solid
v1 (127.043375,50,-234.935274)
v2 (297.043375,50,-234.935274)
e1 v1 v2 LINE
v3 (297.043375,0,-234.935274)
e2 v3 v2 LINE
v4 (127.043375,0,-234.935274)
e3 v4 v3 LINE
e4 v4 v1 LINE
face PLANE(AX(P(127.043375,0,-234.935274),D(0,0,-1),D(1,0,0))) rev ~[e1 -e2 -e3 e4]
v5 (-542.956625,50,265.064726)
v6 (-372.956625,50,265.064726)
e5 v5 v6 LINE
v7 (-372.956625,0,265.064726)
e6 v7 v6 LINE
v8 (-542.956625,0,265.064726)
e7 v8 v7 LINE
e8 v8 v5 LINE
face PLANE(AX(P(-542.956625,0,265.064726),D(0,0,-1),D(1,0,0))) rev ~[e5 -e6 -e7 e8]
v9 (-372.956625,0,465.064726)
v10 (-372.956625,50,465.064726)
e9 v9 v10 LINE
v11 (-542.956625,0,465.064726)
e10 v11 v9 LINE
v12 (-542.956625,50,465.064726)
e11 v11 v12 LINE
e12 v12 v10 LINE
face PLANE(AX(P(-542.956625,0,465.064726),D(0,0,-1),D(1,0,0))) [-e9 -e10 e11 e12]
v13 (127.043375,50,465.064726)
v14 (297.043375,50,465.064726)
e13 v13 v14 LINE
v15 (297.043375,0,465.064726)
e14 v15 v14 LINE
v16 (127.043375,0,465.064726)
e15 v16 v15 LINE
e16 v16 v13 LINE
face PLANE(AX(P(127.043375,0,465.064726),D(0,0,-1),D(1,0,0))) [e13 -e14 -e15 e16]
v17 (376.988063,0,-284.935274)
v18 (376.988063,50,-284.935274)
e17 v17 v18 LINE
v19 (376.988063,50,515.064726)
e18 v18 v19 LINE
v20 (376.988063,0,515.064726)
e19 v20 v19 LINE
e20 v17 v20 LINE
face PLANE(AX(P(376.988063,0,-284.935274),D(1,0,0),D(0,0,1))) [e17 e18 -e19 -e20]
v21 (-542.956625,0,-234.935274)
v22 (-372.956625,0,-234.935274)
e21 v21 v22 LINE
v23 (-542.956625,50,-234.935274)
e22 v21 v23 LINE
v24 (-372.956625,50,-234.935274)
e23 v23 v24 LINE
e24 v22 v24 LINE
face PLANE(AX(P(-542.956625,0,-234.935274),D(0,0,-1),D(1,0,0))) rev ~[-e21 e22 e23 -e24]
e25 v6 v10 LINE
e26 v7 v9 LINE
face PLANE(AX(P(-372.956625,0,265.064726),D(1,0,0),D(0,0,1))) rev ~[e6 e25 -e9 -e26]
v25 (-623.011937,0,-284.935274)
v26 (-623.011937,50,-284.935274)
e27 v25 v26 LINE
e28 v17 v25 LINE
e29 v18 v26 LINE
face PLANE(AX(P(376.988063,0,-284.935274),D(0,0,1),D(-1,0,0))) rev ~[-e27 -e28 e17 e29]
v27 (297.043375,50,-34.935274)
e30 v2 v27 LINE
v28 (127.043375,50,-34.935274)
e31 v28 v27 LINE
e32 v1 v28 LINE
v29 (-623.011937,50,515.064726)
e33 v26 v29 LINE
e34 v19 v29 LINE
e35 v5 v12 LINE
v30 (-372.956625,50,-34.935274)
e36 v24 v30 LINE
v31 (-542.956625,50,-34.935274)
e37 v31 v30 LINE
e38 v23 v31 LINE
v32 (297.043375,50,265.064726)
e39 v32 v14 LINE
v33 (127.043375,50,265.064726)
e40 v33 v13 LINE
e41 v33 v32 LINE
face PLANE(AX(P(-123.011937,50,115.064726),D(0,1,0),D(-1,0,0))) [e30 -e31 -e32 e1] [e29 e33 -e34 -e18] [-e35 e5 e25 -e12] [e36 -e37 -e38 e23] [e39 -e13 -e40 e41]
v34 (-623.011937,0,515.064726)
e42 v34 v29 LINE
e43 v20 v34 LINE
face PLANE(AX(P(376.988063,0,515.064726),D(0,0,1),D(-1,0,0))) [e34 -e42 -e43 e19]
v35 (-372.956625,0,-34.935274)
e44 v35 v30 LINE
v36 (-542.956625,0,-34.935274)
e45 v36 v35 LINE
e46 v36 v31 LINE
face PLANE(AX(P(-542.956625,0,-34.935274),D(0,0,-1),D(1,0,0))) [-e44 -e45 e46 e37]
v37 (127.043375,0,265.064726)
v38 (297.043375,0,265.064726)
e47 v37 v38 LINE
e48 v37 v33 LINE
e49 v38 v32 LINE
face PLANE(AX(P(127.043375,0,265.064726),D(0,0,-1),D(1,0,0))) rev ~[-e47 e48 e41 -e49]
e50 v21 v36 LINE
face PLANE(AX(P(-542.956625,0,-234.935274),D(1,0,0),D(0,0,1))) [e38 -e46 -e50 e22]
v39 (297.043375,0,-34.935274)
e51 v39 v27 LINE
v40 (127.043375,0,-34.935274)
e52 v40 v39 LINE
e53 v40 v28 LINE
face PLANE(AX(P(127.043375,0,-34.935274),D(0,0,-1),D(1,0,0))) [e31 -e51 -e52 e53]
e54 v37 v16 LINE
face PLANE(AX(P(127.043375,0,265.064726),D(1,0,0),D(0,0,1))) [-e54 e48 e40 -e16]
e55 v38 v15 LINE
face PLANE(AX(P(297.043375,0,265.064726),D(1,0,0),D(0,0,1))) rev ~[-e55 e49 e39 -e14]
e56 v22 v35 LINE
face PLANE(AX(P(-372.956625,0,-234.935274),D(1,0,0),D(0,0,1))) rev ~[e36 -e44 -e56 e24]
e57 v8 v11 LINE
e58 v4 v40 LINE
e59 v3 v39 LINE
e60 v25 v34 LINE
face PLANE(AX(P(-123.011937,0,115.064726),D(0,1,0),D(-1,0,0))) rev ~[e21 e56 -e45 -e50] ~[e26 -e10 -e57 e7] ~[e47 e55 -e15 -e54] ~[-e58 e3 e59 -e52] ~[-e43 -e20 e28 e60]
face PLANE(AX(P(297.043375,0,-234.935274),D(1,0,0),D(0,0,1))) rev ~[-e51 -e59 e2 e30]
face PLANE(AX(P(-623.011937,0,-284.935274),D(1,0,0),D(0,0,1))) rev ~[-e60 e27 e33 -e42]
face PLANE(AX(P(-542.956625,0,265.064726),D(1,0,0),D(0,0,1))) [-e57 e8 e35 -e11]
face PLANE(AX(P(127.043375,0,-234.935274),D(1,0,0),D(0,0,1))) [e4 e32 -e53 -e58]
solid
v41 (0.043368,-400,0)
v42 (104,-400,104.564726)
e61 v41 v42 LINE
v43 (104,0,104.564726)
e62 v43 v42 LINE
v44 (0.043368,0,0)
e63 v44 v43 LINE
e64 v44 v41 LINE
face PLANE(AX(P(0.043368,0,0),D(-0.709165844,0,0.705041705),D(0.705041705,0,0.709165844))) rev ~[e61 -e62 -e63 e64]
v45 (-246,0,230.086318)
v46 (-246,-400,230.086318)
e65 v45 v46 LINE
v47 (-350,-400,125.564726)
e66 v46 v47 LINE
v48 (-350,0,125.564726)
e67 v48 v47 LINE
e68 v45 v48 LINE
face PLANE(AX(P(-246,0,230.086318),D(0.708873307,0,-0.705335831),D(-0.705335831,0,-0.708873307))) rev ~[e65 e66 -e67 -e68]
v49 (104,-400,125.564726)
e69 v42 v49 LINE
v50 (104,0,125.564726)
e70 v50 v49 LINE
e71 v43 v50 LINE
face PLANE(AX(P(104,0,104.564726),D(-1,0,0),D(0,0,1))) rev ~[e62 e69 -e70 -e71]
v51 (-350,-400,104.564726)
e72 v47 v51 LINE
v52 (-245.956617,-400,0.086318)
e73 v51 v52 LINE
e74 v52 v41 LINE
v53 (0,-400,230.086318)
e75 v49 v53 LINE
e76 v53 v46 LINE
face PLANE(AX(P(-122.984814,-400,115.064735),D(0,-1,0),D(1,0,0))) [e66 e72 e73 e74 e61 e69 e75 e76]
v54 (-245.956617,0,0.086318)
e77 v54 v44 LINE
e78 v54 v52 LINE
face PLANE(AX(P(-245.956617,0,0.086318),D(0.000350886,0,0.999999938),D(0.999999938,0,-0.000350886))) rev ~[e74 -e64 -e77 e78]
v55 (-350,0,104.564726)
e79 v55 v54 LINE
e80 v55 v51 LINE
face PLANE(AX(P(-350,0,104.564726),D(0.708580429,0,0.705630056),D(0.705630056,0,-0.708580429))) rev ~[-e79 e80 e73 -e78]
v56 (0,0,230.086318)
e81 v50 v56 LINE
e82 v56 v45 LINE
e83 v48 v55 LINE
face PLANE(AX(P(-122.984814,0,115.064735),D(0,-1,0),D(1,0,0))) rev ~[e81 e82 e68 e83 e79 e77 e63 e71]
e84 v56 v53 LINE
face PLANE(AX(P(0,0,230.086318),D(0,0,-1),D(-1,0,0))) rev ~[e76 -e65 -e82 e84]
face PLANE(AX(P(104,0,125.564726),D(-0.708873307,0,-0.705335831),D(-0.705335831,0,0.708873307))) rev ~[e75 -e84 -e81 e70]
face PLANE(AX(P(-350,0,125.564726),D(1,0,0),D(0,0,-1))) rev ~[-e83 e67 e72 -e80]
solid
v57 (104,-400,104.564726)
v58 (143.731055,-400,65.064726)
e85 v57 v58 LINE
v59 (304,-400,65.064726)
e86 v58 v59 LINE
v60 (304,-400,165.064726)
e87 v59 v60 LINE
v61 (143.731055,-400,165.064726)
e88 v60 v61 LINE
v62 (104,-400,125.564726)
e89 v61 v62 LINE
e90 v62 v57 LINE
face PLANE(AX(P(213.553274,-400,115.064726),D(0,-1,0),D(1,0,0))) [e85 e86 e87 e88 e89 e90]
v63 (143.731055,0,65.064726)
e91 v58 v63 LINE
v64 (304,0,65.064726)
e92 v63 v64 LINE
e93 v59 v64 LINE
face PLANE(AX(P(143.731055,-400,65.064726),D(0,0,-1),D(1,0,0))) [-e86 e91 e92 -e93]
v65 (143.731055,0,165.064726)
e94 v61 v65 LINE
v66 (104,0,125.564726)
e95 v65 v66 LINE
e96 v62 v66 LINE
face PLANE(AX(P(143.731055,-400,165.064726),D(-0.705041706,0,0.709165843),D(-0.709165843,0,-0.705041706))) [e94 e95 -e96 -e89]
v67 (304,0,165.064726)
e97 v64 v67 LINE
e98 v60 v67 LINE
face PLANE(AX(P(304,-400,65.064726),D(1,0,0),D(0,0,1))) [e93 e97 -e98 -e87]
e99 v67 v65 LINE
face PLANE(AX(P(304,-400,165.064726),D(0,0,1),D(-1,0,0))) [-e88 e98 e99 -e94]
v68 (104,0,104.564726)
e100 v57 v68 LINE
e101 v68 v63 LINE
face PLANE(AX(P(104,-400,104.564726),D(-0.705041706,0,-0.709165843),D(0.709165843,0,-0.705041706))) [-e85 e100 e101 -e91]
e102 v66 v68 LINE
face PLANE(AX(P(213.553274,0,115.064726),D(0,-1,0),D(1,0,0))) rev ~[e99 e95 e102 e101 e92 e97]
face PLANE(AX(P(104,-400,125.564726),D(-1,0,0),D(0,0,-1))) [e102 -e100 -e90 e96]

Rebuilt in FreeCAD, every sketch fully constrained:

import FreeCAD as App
import Part
import Sketcher
from FreeCAD import Vector
Q = App.Units.Quantity

doc = App.newDocument("Part")
body = doc.addObject("PartDesign::Body", "Body")

sketch1 = body.newObject("Sketcher::SketchObject", "Sketch")
sketch1.AttachmentSupport = (doc.getObject("XZ_Plane"), [""])
sketch1.MapMode = "FlatFace"
sketch1.addGeometry([
    Part.LineSegment(Vector(-350, 105, 0), Vector(-246, 0, 0)),
    Part.LineSegment(Vector(-246, 0, 0), Vector(0, 0, 0)),
    Part.LineSegment(Vector(0, 0, 0), Vector(104, 105, 0)),
    Part.LineSegment(Vector(104, 105, 0), Vector(104, 126, 0)),
    Part.LineSegment(Vector(104, 126, 0), Vector(0, 230, 0)),
    Part.LineSegment(Vector(0, 230, 0), Vector(-246, 230, 0)),
    Part.LineSegment(Vector(-246, 230, 0), Vector(-350, 126, 0)),
    Part.LineSegment(Vector(-350, 126, 0), Vector(-350, 105, 0)),
], False)
sketch1.addConstraint([
    Sketcher.Constraint("Coincident", 0, 2, 1, 1),
    Sketcher.Constraint("Coincident", 1, 2, 2, 1),
    Sketcher.Constraint("Coincident", 2, 2, 3, 1),
    Sketcher.Constraint("Coincident", 3, 2, 4, 1),
    Sketcher.Constraint("Coincident", 4, 2, 5, 1),
    Sketcher.Constraint("Coincident", 5, 2, 6, 1),
    Sketcher.Constraint("Coincident", 6, 2, 7, 1),
    Sketcher.Constraint("Coincident", 7, 2, 0, 1),
    Sketcher.Constraint("Vertical", 3),
    Sketcher.Constraint("Horizontal", 5),
    Sketcher.Constraint("Vertical", 7),
    Sketcher.Constraint("PointOnObject", 1, 2, -1),
    Sketcher.Constraint("PointOnObject", 4, 2, -2),
    Sketcher.Constraint("Horizontal", 3, 2, 6, 2),
    Sketcher.Constraint("Horizontal", 2, 2, 7, 2),
    Sketcher.Constraint("Equal", 0, 2),
    Sketcher.Constraint("Equal", 2, 4),
    Sketcher.Constraint("Equal", 4, 6),
    Sketcher.Constraint("DistanceX", 5, 2, 5, 1, Q("246 mm")),
    Sketcher.Constraint("DistanceY", 3, 1, 3, 2, Q("21 mm")),
    Sketcher.Constraint("Distance", 1, Q("246 mm")),
    Sketcher.Constraint("DistanceX", -1, 1, 2, 2, Q("104 mm")),
    Sketcher.Constraint("DistanceY", 0, 2, 4, 2, Q("230 mm")),
    Sketcher.Constraint("DistanceY", -1, 1, 0, 2, Q("0.086318 mm")),
])
pad1 = body.newObject("PartDesign::Pad", "Pad")
pad1.Profile = sketch1
pad1.Length = 400
body2 = doc.addObject("PartDesign::Body", "Body001")

sketch2 = body2.newObject("Sketcher::SketchObject", "Sketch001")
sketch2.AttachmentSupport = (doc.getObject("XZ_Plane001"), [""])
sketch2.MapMode = "FlatFace"
sketch2.addGeometry([
    Part.LineSegment(Vector(377, 515, 0), Vector(377, -285, 0)),
    Part.LineSegment(Vector(377, -285, 0), Vector(-623, -285, 0)),
    Part.LineSegment(Vector(-623, -285, 0), Vector(-623, 515, 0)),
    Part.LineSegment(Vector(-623, 515, 0), Vector(377, 515, 0)),
], False)
sketch2.addConstraint([
    Sketcher.Constraint("Coincident", 0, 2, 1, 1),
    Sketcher.Constraint("Coincident", 1, 2, 2, 1),
    Sketcher.Constraint("Coincident", 2, 2, 3, 1),
    Sketcher.Constraint("Coincident", 3, 2, 0, 1),
    Sketcher.Constraint("Vertical", 0),
    Sketcher.Constraint("Horizontal", 1),
    Sketcher.Constraint("Vertical", 2),
    Sketcher.Constraint("Horizontal", 3),
    Sketcher.Constraint("DistanceX", 1, 2, 1, 1, Q("1000 mm")),
    Sketcher.Constraint("DistanceY", 0, 2, 0, 1, Q("800 mm")),
    Sketcher.Constraint("DistanceX", -1, 1, 0, 2, Q("376.988063 mm")),
    Sketcher.Constraint("DistanceY", 0, 2, -1, 1, Q("284.935274 mm")),
])
pad2 = body2.newObject("PartDesign::Pad", "Pad001")
pad2.Profile = sketch2
pad2.Length = 50
pad2.Reversed = True

sketch3 = body2.newObject("Sketcher::SketchObject", "Sketch002")
sketch3.AttachmentSupport = (doc.getObject("XZ_Plane001"), [""])
sketch3.MapMode = "FlatFace"
sketch3.addGeometry([
    Part.LineSegment(Vector(-543, -35, 0), Vector(-543, -235, 0)),
    Part.LineSegment(Vector(-543, -235, 0), Vector(-373, -235, 0)),
    Part.LineSegment(Vector(-373, -235, 0), Vector(-373, -35, 0)),
    Part.LineSegment(Vector(-373, -35, 0), Vector(-543, -35, 0)),
    Part.LineSegment(Vector(-543, 465, 0), Vector(-543, 265, 0)),
    Part.LineSegment(Vector(-543, 265, 0), Vector(-373, 265, 0)),
    Part.LineSegment(Vector(-373, 265, 0), Vector(-373, 465, 0)),
    Part.LineSegment(Vector(-373, 465, 0), Vector(-543, 465, 0)),
    Part.LineSegment(Vector(127, 465, 0), Vector(127, 265, 0)),
    Part.LineSegment(Vector(127, 265, 0), Vector(297, 265, 0)),
    Part.LineSegment(Vector(297, 265, 0), Vector(297, 465, 0)),
    Part.LineSegment(Vector(297, 465, 0), Vector(127, 465, 0)),
    Part.LineSegment(Vector(127, -35, 0), Vector(127, -235, 0)),
    Part.LineSegment(Vector(127, -235, 0), Vector(297, -235, 0)),
    Part.LineSegment(Vector(297, -235, 0), Vector(297, -35, 0)),
    Part.LineSegment(Vector(297, -35, 0), Vector(127, -35, 0)),
], False)
sketch3.addConstraint([
    Sketcher.Constraint("Coincident", 0, 2, 1, 1),
    Sketcher.Constraint("Coincident", 1, 2, 2, 1),
    Sketcher.Constraint("Coincident", 2, 2, 3, 1),
    Sketcher.Constraint("Coincident", 3, 2, 0, 1),
    Sketcher.Constraint("Coincident", 4, 2, 5, 1),
    Sketcher.Constraint("Coincident", 5, 2, 6, 1),
    Sketcher.Constraint("Coincident", 6, 2, 7, 1),
    Sketcher.Constraint("Coincident", 7, 2, 4, 1),
    Sketcher.Constraint("Coincident", 8, 2, 9, 1),
    Sketcher.Constraint("Coincident", 9, 2, 10, 1),
    Sketcher.Constraint("Coincident", 10, 2, 11, 1),
    Sketcher.Constraint("Coincident", 11, 2, 8, 1),
    Sketcher.Constraint("Coincident", 12, 2, 13, 1),
    Sketcher.Constraint("Coincident", 13, 2, 14, 1),
    Sketcher.Constraint("Coincident", 14, 2, 15, 1),
    Sketcher.Constraint("Coincident", 15, 2, 12, 1),
    Sketcher.Constraint("Vertical", 0),
    Sketcher.Constraint("Horizontal", 1),
    Sketcher.Constraint("Vertical", 2),
    Sketcher.Constraint("Horizontal", 3),
    Sketcher.Constraint("Vertical", 4),
    Sketcher.Constraint("Horizontal", 5),
    Sketcher.Constraint("Vertical", 6),
    Sketcher.Constraint("Horizontal", 7),
    Sketcher.Constraint("Vertical", 8),
    Sketcher.Constraint("Horizontal", 9),
    Sketcher.Constraint("Vertical", 10),
    Sketcher.Constraint("Horizontal", 11),
    Sketcher.Constraint("Vertical", 12),
    Sketcher.Constraint("Horizontal", 13),
    Sketcher.Constraint("Vertical", 14),
    Sketcher.Constraint("Horizontal", 15),
    Sketcher.Constraint("Horizontal", 5, 2, 8, 2),
    Sketcher.Constraint("Horizontal", 7, 2, 10, 2),
    Sketcher.Constraint("Horizontal", 1, 2, 12, 2),
    Sketcher.Constraint("Horizontal", 3, 2, 14, 2),
    Sketcher.Constraint("Vertical", 3, 2, 4, 2),
    Sketcher.Constraint("Vertical", 2, 2, 5, 2),
    Sketcher.Constraint("Vertical", 11, 2, 12, 2),
    Sketcher.Constraint("Vertical", 10, 2, 13, 2),
    Sketcher.Constraint("Equal", 7, 9),
    Sketcher.Constraint("Equal", 2, 4),
    Sketcher.Constraint("DistanceX", 1, 1, 1, 2, Q("170 mm")),
    Sketcher.Constraint("DistanceY", 0, 2, 0, 1, Q("200 mm")),
    Sketcher.Constraint("DistanceY", 3, 2, 4, 2, Q("300 mm")),
    Sketcher.Constraint("DistanceX", 5, 2, 8, 2, Q("500 mm")),
    Sketcher.Constraint("DistanceX", 0, 2, -1, 1, Q("542.956625 mm")),
    Sketcher.Constraint("DistanceY", 0, 2, -1, 1, Q("234.935274 mm")),
])
pocket1 = body2.newObject("PartDesign::Pocket", "Pocket")
pocket1.Profile = sketch3
pocket1.Type = "ThroughAll"
body3 = doc.addObject("PartDesign::Body", "Body002")

sketch4 = body3.newObject("Sketcher::SketchObject", "Sketch003")
sketch4.AttachmentSupport = (doc.getObject("XZ_Plane002"), [""])
sketch4.MapMode = "FlatFace"
sketch4.AttachmentOffset = App.Placement(Vector(0, 0, 400), App.Rotation())
sketch4.addGeometry([
    Part.LineSegment(Vector(104, 126, 0), Vector(104, 105, 0)),
    Part.LineSegment(Vector(104, 105, 0), Vector(144, 65, 0)),
    Part.LineSegment(Vector(144, 65, 0), Vector(304, 65, 0)),
    Part.LineSegment(Vector(304, 65, 0), Vector(304, 165, 0)),
    Part.LineSegment(Vector(304, 165, 0), Vector(144, 165, 0)),
    Part.LineSegment(Vector(144, 165, 0), Vector(104, 126, 0)),
], False)
sketch4.addConstraint([
    Sketcher.Constraint("Coincident", 0, 2, 1, 1),
    Sketcher.Constraint("Coincident", 1, 2, 2, 1),
    Sketcher.Constraint("Coincident", 2, 2, 3, 1),
    Sketcher.Constraint("Coincident", 3, 2, 4, 1),
    Sketcher.Constraint("Coincident", 4, 2, 5, 1),
    Sketcher.Constraint("Coincident", 5, 2, 0, 1),
    Sketcher.Constraint("Vertical", 0),
    Sketcher.Constraint("Horizontal", 2),
    Sketcher.Constraint("Vertical", 3),
    Sketcher.Constraint("Horizontal", 4),
    Sketcher.Constraint("Vertical", 1, 2, 4, 2),
    Sketcher.Constraint("Equal", 1, 5),
    Sketcher.Constraint("DistanceY", 0, 2, 0, 1, Q("21 mm")),
    Sketcher.Constraint("DistanceY", 3, 1, 3, 2, Q("100 mm")),
    Sketcher.Constraint("DistanceX", -1, 1, 0, 2, Q("104 mm")),
    Sketcher.Constraint("DistanceX", -1, 1, 2, 2, Q("304 mm")),
    Sketcher.Constraint("DistanceX", 2, 1, 2, 2, Q("160.268945 mm")),
    Sketcher.Constraint("DistanceY", -1, 1, 0, 2, Q("104.564726 mm")),
])
pad3 = body3.newObject("PartDesign::Pad", "Pad002")
pad3.Profile = sketch4
pad3.Length = 400
pad3.Reversed = True

doc.recompute()
